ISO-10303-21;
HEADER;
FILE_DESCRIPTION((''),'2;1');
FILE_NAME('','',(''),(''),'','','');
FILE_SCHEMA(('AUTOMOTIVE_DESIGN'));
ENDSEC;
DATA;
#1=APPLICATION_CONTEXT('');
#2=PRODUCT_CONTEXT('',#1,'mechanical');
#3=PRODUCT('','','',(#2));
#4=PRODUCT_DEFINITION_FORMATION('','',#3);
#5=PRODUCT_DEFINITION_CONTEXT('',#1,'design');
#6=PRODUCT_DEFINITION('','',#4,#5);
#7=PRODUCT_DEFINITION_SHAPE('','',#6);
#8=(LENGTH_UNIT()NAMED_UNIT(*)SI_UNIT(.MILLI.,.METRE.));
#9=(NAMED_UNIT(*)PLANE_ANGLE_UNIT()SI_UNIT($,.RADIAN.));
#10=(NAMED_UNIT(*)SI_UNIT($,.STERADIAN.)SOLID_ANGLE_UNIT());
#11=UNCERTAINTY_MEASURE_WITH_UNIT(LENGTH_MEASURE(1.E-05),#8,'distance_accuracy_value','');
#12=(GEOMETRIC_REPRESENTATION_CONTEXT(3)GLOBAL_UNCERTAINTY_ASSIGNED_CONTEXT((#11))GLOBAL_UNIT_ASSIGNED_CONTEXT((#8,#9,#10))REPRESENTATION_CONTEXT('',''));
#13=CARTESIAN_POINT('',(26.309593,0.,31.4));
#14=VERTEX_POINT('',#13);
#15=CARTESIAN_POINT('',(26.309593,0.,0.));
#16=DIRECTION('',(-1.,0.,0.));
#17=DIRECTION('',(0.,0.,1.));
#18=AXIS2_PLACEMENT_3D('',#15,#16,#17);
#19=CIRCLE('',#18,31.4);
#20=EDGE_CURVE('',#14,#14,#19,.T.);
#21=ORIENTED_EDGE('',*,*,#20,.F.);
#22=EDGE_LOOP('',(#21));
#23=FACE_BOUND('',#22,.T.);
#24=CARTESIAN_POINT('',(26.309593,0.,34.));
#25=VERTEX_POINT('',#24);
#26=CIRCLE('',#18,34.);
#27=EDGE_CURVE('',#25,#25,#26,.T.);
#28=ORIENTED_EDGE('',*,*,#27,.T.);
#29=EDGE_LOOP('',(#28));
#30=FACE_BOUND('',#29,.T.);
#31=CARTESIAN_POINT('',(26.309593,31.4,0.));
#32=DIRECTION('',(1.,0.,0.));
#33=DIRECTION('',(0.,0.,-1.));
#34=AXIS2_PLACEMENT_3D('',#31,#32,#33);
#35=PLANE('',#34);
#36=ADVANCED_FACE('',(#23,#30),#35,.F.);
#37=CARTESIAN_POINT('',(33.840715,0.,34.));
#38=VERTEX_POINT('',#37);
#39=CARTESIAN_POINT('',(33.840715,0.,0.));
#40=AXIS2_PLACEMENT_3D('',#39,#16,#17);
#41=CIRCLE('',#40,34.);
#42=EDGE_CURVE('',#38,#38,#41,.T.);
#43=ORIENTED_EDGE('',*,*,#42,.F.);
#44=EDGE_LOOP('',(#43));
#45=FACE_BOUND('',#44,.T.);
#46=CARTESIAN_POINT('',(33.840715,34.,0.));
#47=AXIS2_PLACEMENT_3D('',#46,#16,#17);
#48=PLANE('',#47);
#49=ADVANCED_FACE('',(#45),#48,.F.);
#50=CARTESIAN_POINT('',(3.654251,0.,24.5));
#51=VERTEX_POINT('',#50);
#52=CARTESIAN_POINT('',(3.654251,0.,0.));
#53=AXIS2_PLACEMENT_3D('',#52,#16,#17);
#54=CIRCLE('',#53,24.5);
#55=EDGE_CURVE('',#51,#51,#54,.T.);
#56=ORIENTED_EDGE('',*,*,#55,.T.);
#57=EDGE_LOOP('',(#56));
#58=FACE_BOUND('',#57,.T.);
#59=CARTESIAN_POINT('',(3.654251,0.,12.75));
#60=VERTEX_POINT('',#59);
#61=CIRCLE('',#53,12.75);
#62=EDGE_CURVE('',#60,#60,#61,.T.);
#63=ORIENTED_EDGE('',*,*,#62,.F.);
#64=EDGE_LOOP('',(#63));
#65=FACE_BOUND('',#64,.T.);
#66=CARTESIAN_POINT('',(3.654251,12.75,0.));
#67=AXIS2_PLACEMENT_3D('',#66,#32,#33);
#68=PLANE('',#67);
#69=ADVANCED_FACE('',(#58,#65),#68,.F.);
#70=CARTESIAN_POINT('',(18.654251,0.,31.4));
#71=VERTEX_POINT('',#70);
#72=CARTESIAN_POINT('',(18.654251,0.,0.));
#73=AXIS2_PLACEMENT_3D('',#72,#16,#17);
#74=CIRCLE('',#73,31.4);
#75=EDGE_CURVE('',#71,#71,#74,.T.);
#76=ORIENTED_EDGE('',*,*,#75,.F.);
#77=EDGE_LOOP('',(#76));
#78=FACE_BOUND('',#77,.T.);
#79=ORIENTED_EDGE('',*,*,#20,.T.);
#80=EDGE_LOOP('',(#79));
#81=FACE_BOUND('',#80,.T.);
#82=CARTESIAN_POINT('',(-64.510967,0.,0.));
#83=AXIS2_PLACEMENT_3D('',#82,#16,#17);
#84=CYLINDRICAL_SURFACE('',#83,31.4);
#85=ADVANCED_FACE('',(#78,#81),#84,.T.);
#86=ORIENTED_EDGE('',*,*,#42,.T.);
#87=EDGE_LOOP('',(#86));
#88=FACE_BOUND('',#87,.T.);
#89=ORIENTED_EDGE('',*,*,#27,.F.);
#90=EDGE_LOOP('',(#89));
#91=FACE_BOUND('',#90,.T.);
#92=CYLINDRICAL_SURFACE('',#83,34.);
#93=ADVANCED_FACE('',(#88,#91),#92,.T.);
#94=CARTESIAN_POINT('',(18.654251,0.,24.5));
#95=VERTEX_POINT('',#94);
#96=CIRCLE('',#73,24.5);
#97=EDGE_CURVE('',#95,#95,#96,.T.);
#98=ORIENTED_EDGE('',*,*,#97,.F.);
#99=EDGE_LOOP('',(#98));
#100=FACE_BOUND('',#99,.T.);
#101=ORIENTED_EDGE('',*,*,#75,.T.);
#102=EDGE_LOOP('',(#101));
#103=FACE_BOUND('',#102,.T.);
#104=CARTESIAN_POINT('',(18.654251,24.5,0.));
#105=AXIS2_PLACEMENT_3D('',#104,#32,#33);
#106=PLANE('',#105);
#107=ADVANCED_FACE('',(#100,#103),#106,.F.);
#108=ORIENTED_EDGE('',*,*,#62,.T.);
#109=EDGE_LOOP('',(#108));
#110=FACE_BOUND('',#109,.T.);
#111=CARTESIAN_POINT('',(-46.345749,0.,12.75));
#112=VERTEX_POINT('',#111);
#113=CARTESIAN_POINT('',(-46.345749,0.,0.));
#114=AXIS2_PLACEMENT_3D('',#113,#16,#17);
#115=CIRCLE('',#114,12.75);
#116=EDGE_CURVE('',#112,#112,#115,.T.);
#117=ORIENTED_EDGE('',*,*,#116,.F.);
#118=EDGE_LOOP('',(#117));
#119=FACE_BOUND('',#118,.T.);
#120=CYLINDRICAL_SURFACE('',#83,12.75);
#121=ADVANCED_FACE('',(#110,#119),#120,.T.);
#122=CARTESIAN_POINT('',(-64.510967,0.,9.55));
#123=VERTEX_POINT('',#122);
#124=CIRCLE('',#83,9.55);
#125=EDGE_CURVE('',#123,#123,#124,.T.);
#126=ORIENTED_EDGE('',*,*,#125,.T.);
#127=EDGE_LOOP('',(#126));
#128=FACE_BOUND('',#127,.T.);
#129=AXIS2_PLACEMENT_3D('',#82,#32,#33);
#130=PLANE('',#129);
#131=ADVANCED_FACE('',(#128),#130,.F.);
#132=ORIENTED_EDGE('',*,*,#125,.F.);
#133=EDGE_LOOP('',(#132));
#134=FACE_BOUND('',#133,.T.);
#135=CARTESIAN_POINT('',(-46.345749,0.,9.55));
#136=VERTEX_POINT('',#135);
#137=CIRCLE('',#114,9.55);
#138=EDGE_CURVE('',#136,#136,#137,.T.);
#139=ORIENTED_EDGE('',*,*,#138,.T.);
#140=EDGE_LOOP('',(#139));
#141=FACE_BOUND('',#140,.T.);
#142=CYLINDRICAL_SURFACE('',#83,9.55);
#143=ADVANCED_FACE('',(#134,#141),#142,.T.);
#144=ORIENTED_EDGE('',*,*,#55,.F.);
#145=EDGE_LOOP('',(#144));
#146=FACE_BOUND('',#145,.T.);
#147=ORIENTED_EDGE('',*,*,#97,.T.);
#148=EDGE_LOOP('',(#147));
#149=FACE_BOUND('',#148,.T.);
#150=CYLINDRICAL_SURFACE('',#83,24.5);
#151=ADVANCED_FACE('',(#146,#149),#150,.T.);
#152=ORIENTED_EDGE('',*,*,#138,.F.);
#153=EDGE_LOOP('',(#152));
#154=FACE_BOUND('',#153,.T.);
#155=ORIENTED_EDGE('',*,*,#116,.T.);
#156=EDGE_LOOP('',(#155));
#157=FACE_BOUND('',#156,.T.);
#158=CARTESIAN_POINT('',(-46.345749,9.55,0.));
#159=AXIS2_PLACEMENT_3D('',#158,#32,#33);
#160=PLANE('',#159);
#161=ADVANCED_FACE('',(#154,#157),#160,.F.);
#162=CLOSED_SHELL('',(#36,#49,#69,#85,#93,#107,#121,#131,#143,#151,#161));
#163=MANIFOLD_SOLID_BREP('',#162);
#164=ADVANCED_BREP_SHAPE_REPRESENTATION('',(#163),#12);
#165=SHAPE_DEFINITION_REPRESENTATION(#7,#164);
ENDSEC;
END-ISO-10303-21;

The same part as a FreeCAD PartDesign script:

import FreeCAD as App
import Part
import Sketcher
from FreeCAD import Vector
Q = App.Units.Quantity


def add_polygon(sketch, points):
    """Adds a closed chain of lines whose ends are joined by coincident constraints."""
    first, n = sketch.GeometryCount, len(points)
    for a, b in zip(points, points[1:] + points[:1]):
        sketch.addGeometry(Part.LineSegment(App.Vector(*a, 0), App.Vector(*b, 0)), False)
    for i in range(n):
        sketch.addConstraint(Sketcher.Constraint("Coincident", first + i, 2, first + (i + 1) % n, 1))

doc = App.newDocument("Part")
body = doc.addObject("PartDesign::Body", "Body")

sketch1 = body.newObject("Sketcher::SketchObject", "Sketch")
sketch1.AttachmentSupport = (doc.getObject("XY_Plane"), [""])
sketch1.MapMode = "FlatFace"
add_polygon(sketch1, [(-64.5, 9.6), (-64.5, 0), (33.8, 0), (33.8, 34), (26.3, 34), (26.3, 31.4), (18.7, 31.4), (18.7, 24.5), (3.7, 24.5), (3.7, 12.8), (-46.3, 12.8), (-46.3, 9.6)])
sketch1.addConstraint(Sketcher.Constraint("Vertical", 0))
sketch1.addConstraint(Sketcher.Constraint("Horizontal", 1))
sketch1.addConstraint(Sketcher.Constraint("Vertical", 2))
sketch1.addConstraint(Sketcher.Constraint("Horizontal", 3))
sketch1.addConstraint(Sketcher.Constraint("Vertical", 4))
sketch1.addConstraint(Sketcher.Constraint("Horizontal", 5))
sketch1.addConstraint(Sketcher.Constraint("Vertical", 6))
sketch1.addConstraint(Sketcher.Constraint("Horizontal", 7))
sketch1.addConstraint(Sketcher.Constraint("Vertical", 8))
sketch1.addConstraint(Sketcher.Constraint("Horizontal", 9))
sketch1.addConstraint(Sketcher.Constraint("Vertical", 10))
sketch1.addConstraint(Sketcher.Constraint("Horizontal", 11))
sketch1.addConstraint(Sketcher.Constraint("PointOnObject", 0, 2, -1))
sketch1.addConstraint(Sketcher.Constraint("DistanceX", 7, 2, 7, 1, Q("15 mm")))
sketch1.addConstraint(Sketcher.Constraint("DistanceX", 9, 2, 9, 1, Q("50 mm")))
sketch1.addConstraint(Sketcher.Constraint("DistanceY", 2, 1, 2, 2, Q("34 mm")))
sketch1.addConstraint(Sketcher.Constraint("DistanceY", 4, 2, 4, 1, Q("2.6 mm")))
sketch1.addConstraint(Sketcher.Constraint("DistanceY", 6, 2, 6, 1, Q("6.9 mm")))
sketch1.addConstraint(Sketcher.Constraint("DistanceY", 10, 2, 10, 1, Q("3.2 mm")))
sketch1.addConstraint(Sketcher.Constraint("DistanceY", 0, 2, 0, 1, Q("9.55 mm")))
sketch1.addConstraint(Sketcher.Constraint("DistanceX", 3, 2, 3, 1, Q("7.531122 mm")))
sketch1.addConstraint(Sketcher.Constraint("DistanceX", 11, 2, 11, 1, Q("18.165218 mm")))
sketch1.addConstraint(Sketcher.Constraint("DistanceX", 1, 1, 1, 2, Q("98.351682 mm")))
sketch1.addConstraint(Sketcher.Constraint("DistanceX", -1, 1, 5, 2, Q("18.654251 mm")))
revolution = body.newObject("PartDesign::Revolution", "Revolution")
revolution.Profile = sketch1
revolution.ReferenceAxis = (sketch1, ["H_Axis"])
revolution.Angle = 360

doc.recompute()
